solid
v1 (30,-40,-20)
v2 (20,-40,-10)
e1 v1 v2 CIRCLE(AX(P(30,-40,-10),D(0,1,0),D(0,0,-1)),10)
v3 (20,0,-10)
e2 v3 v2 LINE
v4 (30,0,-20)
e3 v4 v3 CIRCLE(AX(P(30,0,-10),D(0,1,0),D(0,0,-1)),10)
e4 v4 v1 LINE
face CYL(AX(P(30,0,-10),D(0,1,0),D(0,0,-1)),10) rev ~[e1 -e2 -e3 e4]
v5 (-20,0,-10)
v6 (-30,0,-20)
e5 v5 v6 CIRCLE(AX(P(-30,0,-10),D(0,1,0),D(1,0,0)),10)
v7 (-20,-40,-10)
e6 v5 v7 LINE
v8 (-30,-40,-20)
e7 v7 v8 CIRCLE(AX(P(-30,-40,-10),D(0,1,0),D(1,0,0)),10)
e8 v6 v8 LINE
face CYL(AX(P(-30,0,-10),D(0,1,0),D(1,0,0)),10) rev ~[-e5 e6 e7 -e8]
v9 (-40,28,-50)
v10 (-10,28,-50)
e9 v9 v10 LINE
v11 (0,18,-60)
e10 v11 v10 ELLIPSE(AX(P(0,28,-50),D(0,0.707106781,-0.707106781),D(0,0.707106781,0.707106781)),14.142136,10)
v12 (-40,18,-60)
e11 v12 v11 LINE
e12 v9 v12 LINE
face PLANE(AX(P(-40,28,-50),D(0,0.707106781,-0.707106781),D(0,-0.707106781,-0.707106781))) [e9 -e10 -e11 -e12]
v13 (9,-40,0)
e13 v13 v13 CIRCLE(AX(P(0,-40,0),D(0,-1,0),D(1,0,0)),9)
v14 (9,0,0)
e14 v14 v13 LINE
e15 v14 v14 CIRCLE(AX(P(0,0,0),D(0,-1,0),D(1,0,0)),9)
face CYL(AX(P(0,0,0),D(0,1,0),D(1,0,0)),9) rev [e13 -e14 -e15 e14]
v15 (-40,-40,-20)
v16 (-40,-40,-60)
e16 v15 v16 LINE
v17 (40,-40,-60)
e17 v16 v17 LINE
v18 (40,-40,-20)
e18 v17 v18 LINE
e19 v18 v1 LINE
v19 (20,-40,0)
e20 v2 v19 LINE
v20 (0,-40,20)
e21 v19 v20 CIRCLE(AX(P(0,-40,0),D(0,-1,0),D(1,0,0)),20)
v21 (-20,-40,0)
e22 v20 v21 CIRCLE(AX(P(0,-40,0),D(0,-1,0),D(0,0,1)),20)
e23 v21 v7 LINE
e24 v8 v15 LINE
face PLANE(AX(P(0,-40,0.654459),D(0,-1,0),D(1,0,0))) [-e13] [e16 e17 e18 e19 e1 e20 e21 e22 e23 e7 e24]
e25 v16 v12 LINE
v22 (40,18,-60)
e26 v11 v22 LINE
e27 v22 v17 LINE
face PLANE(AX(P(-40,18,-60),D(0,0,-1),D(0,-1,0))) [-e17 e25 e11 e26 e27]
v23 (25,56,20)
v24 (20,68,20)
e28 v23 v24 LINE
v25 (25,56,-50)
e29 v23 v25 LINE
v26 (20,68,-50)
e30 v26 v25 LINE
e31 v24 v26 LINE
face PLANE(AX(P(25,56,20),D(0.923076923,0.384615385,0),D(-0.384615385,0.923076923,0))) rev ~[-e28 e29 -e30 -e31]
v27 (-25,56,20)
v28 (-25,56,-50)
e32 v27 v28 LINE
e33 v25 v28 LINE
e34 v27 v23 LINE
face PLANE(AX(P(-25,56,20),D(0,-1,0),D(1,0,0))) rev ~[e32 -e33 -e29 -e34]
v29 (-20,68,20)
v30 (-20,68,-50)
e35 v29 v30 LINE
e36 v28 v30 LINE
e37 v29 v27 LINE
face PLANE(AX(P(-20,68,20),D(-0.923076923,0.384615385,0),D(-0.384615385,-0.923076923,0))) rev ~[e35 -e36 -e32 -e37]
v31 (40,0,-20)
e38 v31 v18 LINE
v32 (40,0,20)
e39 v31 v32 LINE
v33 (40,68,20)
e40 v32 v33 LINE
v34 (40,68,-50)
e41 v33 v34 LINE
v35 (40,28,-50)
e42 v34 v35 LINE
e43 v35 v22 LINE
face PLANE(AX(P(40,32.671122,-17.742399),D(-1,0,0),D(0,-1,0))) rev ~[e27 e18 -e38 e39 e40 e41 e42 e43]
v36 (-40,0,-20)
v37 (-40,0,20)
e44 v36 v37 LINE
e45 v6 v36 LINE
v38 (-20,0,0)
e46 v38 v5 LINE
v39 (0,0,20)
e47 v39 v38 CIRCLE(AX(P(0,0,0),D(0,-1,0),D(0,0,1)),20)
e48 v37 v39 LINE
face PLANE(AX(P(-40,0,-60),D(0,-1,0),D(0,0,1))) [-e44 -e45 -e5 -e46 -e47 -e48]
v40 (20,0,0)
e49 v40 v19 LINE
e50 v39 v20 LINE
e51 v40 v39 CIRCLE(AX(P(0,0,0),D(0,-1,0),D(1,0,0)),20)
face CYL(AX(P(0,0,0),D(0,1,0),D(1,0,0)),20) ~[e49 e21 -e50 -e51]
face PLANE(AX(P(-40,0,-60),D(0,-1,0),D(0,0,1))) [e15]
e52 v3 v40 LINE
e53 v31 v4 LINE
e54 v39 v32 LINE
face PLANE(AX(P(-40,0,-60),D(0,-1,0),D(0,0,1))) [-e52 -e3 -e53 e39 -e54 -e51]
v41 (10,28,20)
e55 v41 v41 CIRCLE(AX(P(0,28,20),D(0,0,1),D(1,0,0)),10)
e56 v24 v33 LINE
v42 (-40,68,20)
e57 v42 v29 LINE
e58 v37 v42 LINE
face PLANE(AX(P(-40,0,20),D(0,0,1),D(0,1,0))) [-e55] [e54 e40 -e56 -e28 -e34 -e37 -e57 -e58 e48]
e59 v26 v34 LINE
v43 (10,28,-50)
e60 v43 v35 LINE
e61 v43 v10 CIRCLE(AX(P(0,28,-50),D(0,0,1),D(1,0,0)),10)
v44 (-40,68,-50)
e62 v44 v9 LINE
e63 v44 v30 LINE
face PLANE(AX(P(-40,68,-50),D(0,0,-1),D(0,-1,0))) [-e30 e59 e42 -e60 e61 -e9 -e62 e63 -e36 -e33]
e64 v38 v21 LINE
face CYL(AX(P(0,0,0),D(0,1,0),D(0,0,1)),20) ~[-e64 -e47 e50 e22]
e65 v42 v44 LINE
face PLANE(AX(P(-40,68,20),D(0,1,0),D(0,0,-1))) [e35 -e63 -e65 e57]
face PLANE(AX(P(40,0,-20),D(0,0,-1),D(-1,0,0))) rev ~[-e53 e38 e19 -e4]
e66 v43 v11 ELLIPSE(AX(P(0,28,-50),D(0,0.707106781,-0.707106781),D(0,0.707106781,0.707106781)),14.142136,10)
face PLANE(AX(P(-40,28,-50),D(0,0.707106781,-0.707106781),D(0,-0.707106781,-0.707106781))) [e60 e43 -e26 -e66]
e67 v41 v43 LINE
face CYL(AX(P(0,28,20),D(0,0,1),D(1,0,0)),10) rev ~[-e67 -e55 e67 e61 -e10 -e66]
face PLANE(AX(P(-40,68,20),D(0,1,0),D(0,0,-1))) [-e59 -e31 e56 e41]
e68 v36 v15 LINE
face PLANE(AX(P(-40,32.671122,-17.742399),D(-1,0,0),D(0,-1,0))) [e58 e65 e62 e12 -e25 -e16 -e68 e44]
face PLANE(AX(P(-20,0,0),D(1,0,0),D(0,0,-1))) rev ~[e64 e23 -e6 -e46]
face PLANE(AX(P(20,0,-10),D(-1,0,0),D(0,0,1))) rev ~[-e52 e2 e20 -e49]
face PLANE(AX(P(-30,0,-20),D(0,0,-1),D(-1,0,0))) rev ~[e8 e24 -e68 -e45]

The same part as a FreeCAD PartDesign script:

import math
import FreeCAD as App
import Part
import Sketcher

doc = App.newDocument("Part")
params = doc.addObject("Spreadsheet::Sheet", "Params")
for row, (alias, value) in enumerate([
    ("sketch1_diameter", "18 mm"),
    ("sketch1_radius", "20 mm"),
    ("sketch1_radius2", "10 mm"),
    ("sketch1_width", "10 mm"),
    ("sketch1_height", "40 mm"),
    ("pad1_length", "40 mm"),
    ("sketch2_width", "18 mm"),
    ("sketch2_width2", "68 mm"),
    ("sketch2_width3", "40 mm"),
    ("sketch2_height", "80 mm"),
    ("sketch2_height2", "70 mm"),
    ("pad2_length", "80 mm"),
    ("sketch3_width", "40 mm"),
    ("sketch3_width2", "50 mm"),
    ("sketch3_length", "13 mm"),
    ("pad3_length", "100 mm"),
    ("sketch4_diameter", "20 mm"),
    ("pad4_length", "100 mm"),
], start=1):
    params.set(f"A{row}", alias)
    params.set(f"B{row}", "=" + value)
    params.setAlias(f"B{row}", alias)

body = doc.addObject("PartDesign::Body", "Body")

sketch1 = doc.addObject("Sketcher::SketchObject", "Sketch")
body.addObject(sketch1)
sketch1.AttachmentSupport = (doc.XZ_Plane, [""])
sketch1.MapMode = "FlatFace"
sketch1.addGeometry([
    Part.ArcOfCircle(Part.Circle(App.Vector(0, 0, 0), App.Vector(0, 0, 1), 20), math.radians(90), math.radians(180)),
    Part.LineSegment(App.Vector(-20, 0, 0), App.Vector(-20, -10, 0)),
    Part.ArcOfCircle(Part.Circle(App.Vector(-30, -10, 0), App.Vector(0, 0, 1), 10), math.radians(-90), math.radians(0)),
    Part.LineSegment(App.Vector(-30, -20, 0), App.Vector(-40, -20, 0)),
    Part.LineSegment(App.Vector(-40, -20, 0), App.Vector(-40, -60, 0)),
    Part.LineSegment(App.Vector(-40, -60, 0), App.Vector(40, -60, 0)),
    Part.LineSegment(App.Vector(40, -60, 0), App.Vector(40, -20, 0)),
    Part.LineSegment(App.Vector(40, -20, 0), App.Vector(30, -20, 0)),
    Part.ArcOfCircle(Part.Circle(App.Vector(30, -10, 0), App.Vector(0, 0, 1), 10), math.radians(180), math.radians(270)),
    Part.LineSegment(App.Vector(20, -10, 0), App.Vector(20, 0, 0)),
    Part.ArcOfCircle(Part.Circle(App.Vector(0, 0, 0), App.Vector(0, 0, 1), 20), math.radians(0), math.radians(90)),
    Part.Circle(App.Vector(0, 0, 0), App.Vector(0, 0, 1), 9),
], False)
sketch1.addConstraint([
    Sketcher.Constraint("Tangent", 0, 2, 1, 1),
    Sketcher.Constraint("Tangent", 1, 2, 2, 2),
    Sketcher.Constraint("Tangent", 2, 1, 3, 1),
    Sketcher.Constraint("Coincident", 3, 2, 4, 1),
    Sketcher.Constraint("Coincident", 4, 2, 5, 1),
    Sketcher.Constraint("Coincident", 5, 2, 6, 1),
    Sketcher.Constraint("Coincident", 6, 2, 7, 1),
    Sketcher.Constraint("Tangent", 7, 2, 8, 2),
    Sketcher.Constraint("Tangent", 8, 1, 9, 1),
    Sketcher.Constraint("Tangent", 9, 2, 10, 1),
    Sketcher.Constraint("Tangent", 10, 2, 0, 1),
    Sketcher.Constraint("Vertical", 1),
    Sketcher.Constraint("Horizontal", 3),
    Sketcher.Constraint("Vertical", 4),
    Sketcher.Constraint("Horizontal", 5),
    Sketcher.Constraint("Vertical", 6),
    Sketcher.Constraint("Horizontal", 7),
    Sketcher.Constraint("Vertical", 9),
    Sketcher.Constraint("Coincident", 0, 3, -1, 1),
    Sketcher.Constraint("Coincident", 11, 3, -1, 1),
    Sketcher.Constraint("Equal", 2, 8),
    Sketcher.Constraint("Equal", 0, 10),
    Sketcher.Constraint("Symmetric", 3, 2, 6, 2, -2),
    Sketcher.Constraint("PointOnObject", 10, 2, -2),
    Sketcher.Constraint("Equal", 7, 1),
    Sketcher.Constraint("Diameter", 11, 18.0),
    Sketcher.Constraint("Radius", 0, 20.0),
    Sketcher.Constraint("Radius", 2, 10.0),
    Sketcher.Constraint("DistanceX", 3, 2, 3, 1, 10.0),
    Sketcher.Constraint("DistanceY", 4, 2, 4, 1, 40.0),
])
sketch1.setExpression("Constraints[25]", "Params.sketch1_diameter")
sketch1.setExpression("Constraints[26]", "Params.sketch1_radius")
sketch1.setExpression("Constraints[27]", "Params.sketch1_radius2")
sketch1.setExpression("Constraints[28]", "Params.sketch1_width")
sketch1.setExpression("Constraints[29]", "Params.sketch1_height")
pad1 = doc.addObject("PartDesign::Pad", "Pad")
body.addObject(pad1)
pad1.Profile = sketch1
pad1.setExpression("Length", "Params.pad1_length")

sketch2 = doc.addObject("Sketcher::SketchObject", "Sketch001")
body.addObject(sketch2)
sketch2.AttachmentSupport = (doc.YZ_Plane, [""])
sketch2.MapMode = "FlatFace"
sketch2.AttachmentOffset = App.Placement(App.Vector(0, 0, -40), App.Rotation())
sketch2.addGeometry([
    Part.LineSegment(App.Vector(18, -60, 0), App.Vector(0, -60, 0)),
    Part.LineSegment(App.Vector(0, -60, 0), App.Vector(0, 20, 0)),
    Part.LineSegment(App.Vector(0, 20, 0), App.Vector(68, 20, 0)),
    Part.LineSegment(App.Vector(68, 20, 0), App.Vector(68, -50, 0)),
    Part.LineSegment(App.Vector(68, -50, 0), App.Vector(28, -50, 0)),
    Part.LineSegment(App.Vector(28, -50, 0), App.Vector(18, -60, 0)),
], False)
sketch2.addConstraint([
    Sketcher.Constraint("Coincident", 0, 2, 1, 1),
    Sketcher.Constraint("Coincident", 1, 2, 2, 1),
    Sketcher.Constraint("Coincident", 2, 2, 3, 1),
    Sketcher.Constraint("Coincident", 3, 2, 4, 1),
    Sketcher.Constraint("Coincident", 4, 2, 5, 1),
    Sketcher.Constraint("Coincident", 5, 2, 0, 1),
    Sketcher.Constraint("Horizontal", 0),
    Sketcher.Constraint("Vertical", 1),
    Sketcher.Constraint("Horizontal", 2),
    Sketcher.Constraint("Vertical", 3),
    Sketcher.Constraint("Horizontal", 4),
    Sketcher.Constraint("PointOnObject", 0, 2, -2),
    Sketcher.Constraint("DistanceX", 0, 2, 0, 1, 18.0),
    Sketcher.Constraint("DistanceX", 2, 1, 2, 2, 68.0),
    Sketcher.Constraint("DistanceX", 4, 2, 4, 1, 40.0),
    Sketcher.Constraint("DistanceY", 1, 1, 1, 2, 80.0),
    Sketcher.Constraint("DistanceY", 3, 2, 3, 1, 70.0),
    Sketcher.Constraint("DistanceY", 0, 2, -1, 1, 60.0),
])
sketch2.setExpression("Constraints[12]", "Params.sketch2_width")
sketch2.setExpression("Constraints[13]", "Params.sketch2_width2")
sketch2.setExpression("Constraints[14]", "Params.sketch2_width3")
sketch2.setExpression("Constraints[15]", "Params.sketch2_height")
sketch2.setExpression("Constraints[16]", "Params.sketch2_height2")
pad2 = doc.addObject("PartDesign::Pad", "Pad001")
body.addObject(pad2)
pad2.Profile = sketch2
pad2.setExpression("Length", "Params.pad2_length")
body2 = doc.addObject("PartDesign::Body", "Body001")

sketch3 = doc.addObject("Sketcher::SketchObject", "Sketch002")
body2.addObject(sketch3)
sketch3.AttachmentSupport = (doc.getObject("XY_Plane001"), [""])
sketch3.MapMode = "FlatFace"
sketch3.AttachmentOffset = App.Placement(App.Vector(0, 0, 20), App.Rotation())
sketch3.addGeometry([
    Part.LineSegment(App.Vector(20, 68, 0), App.Vector(-20, 68, 0)),
    Part.LineSegment(App.Vector(-20, 68, 0), App.Vector(-25, 56, 0)),
    Part.LineSegment(App.Vector(-25, 56, 0), App.Vector(25, 56, 0)),
    Part.LineSegment(App.Vector(25, 56, 0), App.Vector(20, 68, 0)),
], False)
sketch3.addConstraint([
    Sketcher.Constraint("Coincident", 0, 2, 1, 1),
    Sketcher.Constraint("Coincident", 1, 2, 2, 1),
    Sketcher.Constraint("Coincident", 2, 2, 3, 1),
    Sketcher.Constraint("Coincident", 3, 2, 0, 1),
    Sketcher.Constraint("Horizontal", 0),
    Sketcher.Constraint("Horizontal", 2),
    Sketcher.Constraint("Equal", 1, 3),
    Sketcher.Constraint("DistanceX", 0, 2, 0, 1, 40.0),
    Sketcher.Constraint("DistanceX", 2, 1, 2, 2, 50.0),
    Sketcher.Constraint("Distance", 1, 13.0),
    Sketcher.Constraint("DistanceX", 0, 2, -1, 1, 20.0),
    Sketcher.Constraint("DistanceY", -1, 1, 0, 2, 68.0),
])
sketch3.setExpression("Constraints[7]", "Params.sketch3_width")
sketch3.setExpression("Constraints[8]", "Params.sketch3_width2")
sketch3.setExpression("Constraints[9]", "Params.sketch3_length")
pad3 = doc.addObject("PartDesign::Pad", "Pad002")
body2.addObject(pad3)
pad3.Profile = sketch3
pad3.setExpression("Length", "Params.pad3_length")
pad3.Reversed = True
doc.recompute()

boolean = doc.addObject("PartDesign::Boolean", "Boolean")
body.addObject(boolean)
boolean.Type = "Cut"
boolean.addObjects([body2])
body3 = doc.addObject("PartDesign::Body", "Body002")

sketch4 = doc.addObject("Sketcher::SketchObject", "Sketch003")
body3.addObject(sketch4)
sketch4.AttachmentSupport = (doc.getObject("XY_Plane002"), [""])
sketch4.MapMode = "FlatFace"
sketch4.AttachmentOffset = App.Placement(App.Vector(0, 0, 20), App.Rotation())
sketch4.addGeometry(Part.Circle(App.Vector(0, 28, 0), App.Vector(0, 0, 1), 10), False)
sketch4.addConstraint([
    Sketcher.Constraint("PointOnObject", 0, 3, -2),
    Sketcher.Constraint("Diameter", 0, 20.0),
    Sketcher.Constraint("DistanceY", -1, 1, 0, 3, 28.0),
])
sketch4.setExpression("Constraints[1]", "Params.sketch4_diameter")
pad4 = doc.addObject("PartDesign::Pad", "Pad003")
body3.addObject(pad4)
pad4.Profile = sketch4
pad4.setExpression("Length", "Params.pad4_length")
pad4.Reversed = True
doc.recompute()

boolean2 = doc.addObject("PartDesign::Boolean", "Boolean001")
body.addObject(boolean2)
boolean2.Type = "Cut"
boolean2.addObjects([body3])

doc.recompute()
